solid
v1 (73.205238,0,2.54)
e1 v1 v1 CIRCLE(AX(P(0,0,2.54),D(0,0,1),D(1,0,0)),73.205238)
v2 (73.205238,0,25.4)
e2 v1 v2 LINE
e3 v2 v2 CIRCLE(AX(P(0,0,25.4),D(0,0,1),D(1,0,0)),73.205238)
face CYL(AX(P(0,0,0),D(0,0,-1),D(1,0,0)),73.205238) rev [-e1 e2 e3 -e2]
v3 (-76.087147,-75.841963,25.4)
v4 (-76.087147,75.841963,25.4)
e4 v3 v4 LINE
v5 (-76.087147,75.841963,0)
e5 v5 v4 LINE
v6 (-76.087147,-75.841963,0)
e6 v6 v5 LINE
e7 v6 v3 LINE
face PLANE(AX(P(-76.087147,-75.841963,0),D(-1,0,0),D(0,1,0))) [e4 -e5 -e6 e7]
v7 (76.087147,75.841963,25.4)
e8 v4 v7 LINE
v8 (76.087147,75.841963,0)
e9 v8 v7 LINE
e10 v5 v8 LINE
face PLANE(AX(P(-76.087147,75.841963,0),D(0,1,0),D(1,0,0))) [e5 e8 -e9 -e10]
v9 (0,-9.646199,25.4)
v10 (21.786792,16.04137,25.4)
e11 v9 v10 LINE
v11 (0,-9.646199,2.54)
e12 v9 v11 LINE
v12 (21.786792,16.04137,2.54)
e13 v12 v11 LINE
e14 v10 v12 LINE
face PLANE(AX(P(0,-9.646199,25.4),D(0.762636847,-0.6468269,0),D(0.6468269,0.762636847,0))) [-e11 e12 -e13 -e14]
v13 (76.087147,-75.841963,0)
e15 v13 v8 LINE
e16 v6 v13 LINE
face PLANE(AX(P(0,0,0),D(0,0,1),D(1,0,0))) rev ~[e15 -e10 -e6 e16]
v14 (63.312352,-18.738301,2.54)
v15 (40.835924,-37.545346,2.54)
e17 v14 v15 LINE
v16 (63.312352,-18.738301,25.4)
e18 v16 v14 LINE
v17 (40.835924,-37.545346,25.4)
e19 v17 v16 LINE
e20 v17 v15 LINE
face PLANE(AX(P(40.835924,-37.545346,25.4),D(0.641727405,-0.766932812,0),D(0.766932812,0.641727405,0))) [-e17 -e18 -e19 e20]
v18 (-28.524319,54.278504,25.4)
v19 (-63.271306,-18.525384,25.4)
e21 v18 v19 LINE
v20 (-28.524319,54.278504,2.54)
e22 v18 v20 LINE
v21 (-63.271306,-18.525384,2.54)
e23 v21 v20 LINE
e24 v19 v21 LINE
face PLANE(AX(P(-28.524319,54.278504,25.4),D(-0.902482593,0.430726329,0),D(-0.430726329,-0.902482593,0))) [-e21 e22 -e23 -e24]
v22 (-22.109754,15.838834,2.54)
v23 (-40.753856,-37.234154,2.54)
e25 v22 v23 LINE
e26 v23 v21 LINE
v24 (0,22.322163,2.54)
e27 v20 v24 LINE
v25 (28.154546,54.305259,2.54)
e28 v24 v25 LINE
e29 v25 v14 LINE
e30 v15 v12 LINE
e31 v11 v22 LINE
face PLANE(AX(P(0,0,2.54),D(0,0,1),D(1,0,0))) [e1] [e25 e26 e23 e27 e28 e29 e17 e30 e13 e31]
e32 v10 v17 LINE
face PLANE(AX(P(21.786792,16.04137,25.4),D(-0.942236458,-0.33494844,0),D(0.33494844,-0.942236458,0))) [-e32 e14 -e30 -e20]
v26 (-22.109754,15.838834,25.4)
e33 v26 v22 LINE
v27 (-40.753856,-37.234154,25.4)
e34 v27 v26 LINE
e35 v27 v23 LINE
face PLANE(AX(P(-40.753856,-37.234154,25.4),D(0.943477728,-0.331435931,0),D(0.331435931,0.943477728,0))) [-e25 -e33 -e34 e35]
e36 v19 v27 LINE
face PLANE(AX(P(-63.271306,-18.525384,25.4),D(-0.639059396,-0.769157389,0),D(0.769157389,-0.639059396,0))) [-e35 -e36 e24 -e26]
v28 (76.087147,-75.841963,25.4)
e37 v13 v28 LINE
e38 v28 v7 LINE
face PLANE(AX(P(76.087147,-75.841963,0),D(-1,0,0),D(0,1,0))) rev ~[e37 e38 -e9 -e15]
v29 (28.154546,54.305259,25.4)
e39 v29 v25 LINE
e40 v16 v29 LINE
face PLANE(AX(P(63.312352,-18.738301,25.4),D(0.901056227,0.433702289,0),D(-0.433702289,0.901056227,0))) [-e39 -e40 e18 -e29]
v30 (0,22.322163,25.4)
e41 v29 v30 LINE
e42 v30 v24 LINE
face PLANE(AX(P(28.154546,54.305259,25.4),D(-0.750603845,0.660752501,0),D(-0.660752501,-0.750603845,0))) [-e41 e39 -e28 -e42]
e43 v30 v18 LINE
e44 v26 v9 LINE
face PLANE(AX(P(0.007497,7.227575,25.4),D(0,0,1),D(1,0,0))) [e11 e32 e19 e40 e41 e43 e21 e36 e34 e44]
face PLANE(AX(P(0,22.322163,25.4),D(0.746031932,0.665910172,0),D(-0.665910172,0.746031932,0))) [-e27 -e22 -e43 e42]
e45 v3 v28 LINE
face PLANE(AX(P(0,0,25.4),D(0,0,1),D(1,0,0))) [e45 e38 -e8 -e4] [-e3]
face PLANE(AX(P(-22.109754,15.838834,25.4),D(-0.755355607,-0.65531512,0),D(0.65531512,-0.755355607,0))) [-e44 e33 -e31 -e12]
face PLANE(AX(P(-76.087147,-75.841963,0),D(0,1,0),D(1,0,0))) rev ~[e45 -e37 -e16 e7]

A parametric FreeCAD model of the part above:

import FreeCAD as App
import Part
import Sketcher
from FreeCAD import Vector
Q = App.Units.Quantity

doc = App.newDocument("Part")
body = doc.addObject("PartDesign::Body", "Body")

# Sketch on XY plane
sketch1 = body.newObject("Sketcher::SketchObject", "Sketch")
sketch1.AttachmentSupport = (doc.getObject("XY_Plane"), [""])
sketch1.MapMode = "FlatFace"
sketch1.addGeometry([
    Part.Circle(Vector(0, 0, 0), Vector(0, 0, 1), 73),  # 0
    Part.LineSegment(Vector(-22, 16, 0), Vector(-41, -37, 0)),  # 1
    Part.LineSegment(Vector(-41, -37, 0), Vector(-63, -19, 0)),  # 2
    Part.LineSegment(Vector(-63, -19, 0), Vector(-29, 54, 0)),  # 3
    Part.LineSegment(Vector(-29, 54, 0), Vector(0, 22, 0)),  # 4
    Part.LineSegment(Vector(0, 22, 0), Vector(28, 54, 0)),  # 5
    Part.LineSegment(Vector(28, 54, 0), Vector(63, -19, 0)),  # 6
    Part.LineSegment(Vector(63, -19, 0), Vector(41, -38, 0)),  # 7
    Part.LineSegment(Vector(41, -38, 0), Vector(22, 16, 0)),  # 8
    Part.LineSegment(Vector(22, 16, 0), Vector(0, -10, 0)),  # 9
    Part.LineSegment(Vector(0, -10, 0), Vector(-22, 16, 0)),  # 10
], False)
sketch1.addConstraint([
    Sketcher.Constraint("Coincident", 1, 2, 2, 1),
    Sketcher.Constraint("Coincident", 2, 2, 3, 1),
    Sketcher.Constraint("Coincident", 3, 2, 4, 1),
    Sketcher.Constraint("Coincident", 4, 2, 5, 1),
    Sketcher.Constraint("Coincident", 5, 2, 6, 1),
    Sketcher.Constraint("Coincident", 6, 2, 7, 1),
    Sketcher.Constraint("Coincident", 7, 2, 8, 1),
    Sketcher.Constraint("Coincident", 8, 2, 9, 1),
    Sketcher.Constraint("Coincident", 9, 2, 10, 1),
    Sketcher.Constraint("Coincident", 10, 2, 1, 1),
    Sketcher.Constraint("Coincident", 0, 3, -1, 1),
    Sketcher.Constraint("PointOnObject", 4, 2, -2),
    Sketcher.Constraint("PointOnObject", 9, 2, -2),
    Sketcher.Constraint("Diameter", 0, Q("146.410477 mm")),
    Sketcher.Constraint("DistanceY", 6, 2, -1, 1, Q("18.738301 mm")),
    Sketcher.Constraint("DistanceY", 9, 2, -1, 1, Q("9.646199 mm")),
    Sketcher.Constraint("Distance", 5, Q("42.609822 mm")),
    Sketcher.Constraint("Distance", 9, Q("33.68257 mm")),
    Sketcher.Constraint("Distance", 10, Q("33.739118 mm")),
    Sketcher.Constraint("DistanceX", 3, 2, -1, 1, Q("28.524319 mm")),
    Sketcher.Constraint("DistanceY", -1, 1, 5, 2, Q("54.305259 mm")),
    Sketcher.Constraint("DistanceX", -1, 1, 6, 2, Q("63.312352 mm")),
    Sketcher.Constraint("DistanceY", -1, 1, 8, 2, Q("16.04137 mm")),
    Sketcher.Constraint("DistanceX", 2, 2, 1, 2, Q("22.51745 mm")),
    Sketcher.Constraint("DistanceY", 1, 2, 2, 2, Q("18.708769 mm")),
    Sketcher.Constraint("DistanceY", 2, 2, 3, 2, Q("72.803888 mm")),
    Sketcher.Constraint("DistanceY", 4, 2, 3, 2, Q("31.956341 mm")),
    Sketcher.Constraint("DistanceX", 1, 2, 6, 2, Q("104.066208 mm")),
    Sketcher.Constraint("DistanceY", 7, 2, 4, 2, Q("59.867509 mm")),
    Sketcher.Constraint("DistanceX", 1, 2, 7, 2, Q("81.589781 mm")),
    Sketcher.Constraint("DistanceX", 5, 2, 7, 2, Q("12.681378 mm")),
    Sketcher.Constraint("DistanceY", 10, 2, 4, 2, Q("6.483329 mm")),
])
pad1 = body.newObject("PartDesign::Pad", "Pad")
pad1.Profile = sketch1
pad1.Length = Q("0.1 in")

# Sketch on XY plane
sketch2 = body.newObject("Sketcher::SketchObject", "Sketch001")
sketch2.AttachmentSupport = (doc.getObject("XY_Plane"), [""])
sketch2.MapMode = "FlatFace"
sketch2.addGeometry([
    Part.LineSegment(Vector(-76, 76, 0), Vector(-76, -76, 0)),  # 0
    Part.LineSegment(Vector(-76, -76, 0), Vector(76, -76, 0)),  # 1
    Part.LineSegment(Vector(76, -76, 0), Vector(76, 76, 0)),  # 2
    Part.LineSegment(Vector(76, 76, 0), Vector(-76, 76, 0)),  # 3
    Part.Circle(Vector(0, 0, 0), Vector(0, 0, 1), 73),  # 4
], False)
sketch2.addConstraint([
    Sketcher.Constraint("Coincident", 0, 2, 1, 1),
    Sketcher.Constraint("Coincident", 1, 2, 2, 1),
    Sketcher.Constraint("Coincident", 2, 2, 3, 1),
    Sketcher.Constraint("Coincident", 3, 2, 0, 1),
    Sketcher.Constraint("Vertical", 0),
    Sketcher.Constraint("Horizontal", 1),
    Sketcher.Constraint("Vertical", 2),
    Sketcher.Constraint("Horizontal", 3),
    Sketcher.Constraint("Coincident", 4, 3, -1, 1),
    Sketcher.Constraint("Symmetric", 0, 2, 2, 2, -1, 1),
    Sketcher.Constraint("Diameter", 4, Q("146.410477 mm")),
    Sketcher.Constraint("DistanceX", 1, 1, 1, 2, Q("152.174294 mm")),
    Sketcher.Constraint("DistanceY", 0, 2, 0, 1, Q("151.683927 mm")),
])
pad2 = body.newObject("PartDesign::Pad", "Pad001")
pad2.Profile = sketch2
pad2.Length = Q("1 in")

# Sketch on XY plane
sketch3 = body.newObject("Sketcher::SketchObject", "Sketch002")
sketch3.AttachmentSupport = (doc.getObject("XY_Plane"), [""])
sketch3.MapMode = "FlatFace"
sketch3.AttachmentOffset = App.Placement(Vector(0, 0, 1 * 25.4), App.Rotation())
sketch3.addGeometry([
    Part.LineSegment(Vector(-29, 54, 0), Vector(-63, -19, 0)),  # 0
    Part.LineSegment(Vector(-63, -19, 0), Vector(-41, -37, 0)),  # 1
    Part.LineSegment(Vector(-41, -37, 0), Vector(-22, 16, 0)),  # 2
    Part.LineSegment(Vector(-22, 16, 0), Vector(0, -10, 0)),  # 3
    Part.LineSegment(Vector(0, -10, 0), Vector(22, 16, 0)),  # 4
    Part.LineSegment(Vector(22, 16, 0), Vector(41, -38, 0)),  # 5
    Part.LineSegment(Vector(41, -38, 0), Vector(63, -19, 0)),  # 6
    Part.LineSegment(Vector(63, -19, 0), Vector(28, 54, 0)),  # 7
    Part.LineSegment(Vector(28, 54, 0), Vector(0, 22, 0)),  # 8
    Part.LineSegment(Vector(0, 22, 0), Vector(-29, 54, 0)),  # 9
], False)
sketch3.addConstraint([
    Sketcher.Constraint("Coincident", 0, 2, 1, 1),
    Sketcher.Constraint("Coincident", 1, 2, 2, 1),
    Sketcher.Constraint("Coincident", 2, 2, 3, 1),
    Sketcher.Constraint("Coincident", 3, 2, 4, 1),
    Sketcher.Constraint("Coincident", 4, 2, 5, 1),
    Sketcher.Constraint("Coincident", 5, 2, 6, 1),
    Sketcher.Constraint("Coincident", 6, 2, 7, 1),
    Sketcher.Constraint("Coincident", 7, 2, 8, 1),
    Sketcher.Constraint("Coincident", 8, 2, 9, 1),
    Sketcher.Constraint("Coincident", 9, 2, 0, 1),
    Sketcher.Constraint("PointOnObject", 3, 2, -2),
    Sketcher.Constraint("PointOnObject", 8, 2, -2),
    Sketcher.Constraint("DistanceY", 3, 2, -1, 1, Q("9.646199 mm")),
    Sketcher.Constraint("DistanceY", 6, 2, -1, 1, Q("18.738301 mm")),
    Sketcher.Constraint("DistanceX", 1, 2, 2, 2, Q("18.644102 mm")),
    Sketcher.Constraint("DistanceX", 0, 2, 4, 2, Q("85.058099 mm")),
    Sketcher.Constraint("DistanceX", 2, 2, 7, 2, Q("50.264301 mm")),
    Sketcher.Constraint("Distance", 3, Q("33.739118 mm")),
    Sketcher.Constraint("Distance", 4, Q("33.68257 mm")),
    Sketcher.Constraint("Distance", 8, Q("42.609822 mm")),
    Sketcher.Constraint("DistanceY", -1, 1, 4, 2, Q("16.04137 mm")),
    Sketcher.Constraint("DistanceX", -1, 1, 6, 2, Q("63.312352 mm")),
    Sketcher.Constraint("DistanceY", -1, 1, 7, 2, Q("54.305259 mm")),
    Sketcher.Constraint("DistanceX", 9, 2, -1, 1, Q("28.524319 mm")),
    Sketcher.Constraint("DistanceX", 0, 2, 1, 2, Q("22.51745 mm")),
    Sketcher.Constraint("DistanceY", 1, 2, 0, 2, Q("18.708769 mm")),
    Sketcher.Constraint("DistanceX", 1, 2, 5, 2, Q("81.589781 mm")),
    Sketcher.Constraint("DistanceY", 5, 2, 2, 2, Q("53.384179 mm")),
    Sketcher.Constraint("DistanceY", 5, 2, 0, 2, Q("19.019961 mm")),
    Sketcher.Constraint("DistanceY", 2, 2, 9, 2, Q("38.439671 mm")),
])
pad3 = body.newObject("PartDesign::Pad", "Pad002")
pad3.Profile = sketch3
pad3.Length = Q("1 in")
pad3.Reversed = True

doc.recompute()
